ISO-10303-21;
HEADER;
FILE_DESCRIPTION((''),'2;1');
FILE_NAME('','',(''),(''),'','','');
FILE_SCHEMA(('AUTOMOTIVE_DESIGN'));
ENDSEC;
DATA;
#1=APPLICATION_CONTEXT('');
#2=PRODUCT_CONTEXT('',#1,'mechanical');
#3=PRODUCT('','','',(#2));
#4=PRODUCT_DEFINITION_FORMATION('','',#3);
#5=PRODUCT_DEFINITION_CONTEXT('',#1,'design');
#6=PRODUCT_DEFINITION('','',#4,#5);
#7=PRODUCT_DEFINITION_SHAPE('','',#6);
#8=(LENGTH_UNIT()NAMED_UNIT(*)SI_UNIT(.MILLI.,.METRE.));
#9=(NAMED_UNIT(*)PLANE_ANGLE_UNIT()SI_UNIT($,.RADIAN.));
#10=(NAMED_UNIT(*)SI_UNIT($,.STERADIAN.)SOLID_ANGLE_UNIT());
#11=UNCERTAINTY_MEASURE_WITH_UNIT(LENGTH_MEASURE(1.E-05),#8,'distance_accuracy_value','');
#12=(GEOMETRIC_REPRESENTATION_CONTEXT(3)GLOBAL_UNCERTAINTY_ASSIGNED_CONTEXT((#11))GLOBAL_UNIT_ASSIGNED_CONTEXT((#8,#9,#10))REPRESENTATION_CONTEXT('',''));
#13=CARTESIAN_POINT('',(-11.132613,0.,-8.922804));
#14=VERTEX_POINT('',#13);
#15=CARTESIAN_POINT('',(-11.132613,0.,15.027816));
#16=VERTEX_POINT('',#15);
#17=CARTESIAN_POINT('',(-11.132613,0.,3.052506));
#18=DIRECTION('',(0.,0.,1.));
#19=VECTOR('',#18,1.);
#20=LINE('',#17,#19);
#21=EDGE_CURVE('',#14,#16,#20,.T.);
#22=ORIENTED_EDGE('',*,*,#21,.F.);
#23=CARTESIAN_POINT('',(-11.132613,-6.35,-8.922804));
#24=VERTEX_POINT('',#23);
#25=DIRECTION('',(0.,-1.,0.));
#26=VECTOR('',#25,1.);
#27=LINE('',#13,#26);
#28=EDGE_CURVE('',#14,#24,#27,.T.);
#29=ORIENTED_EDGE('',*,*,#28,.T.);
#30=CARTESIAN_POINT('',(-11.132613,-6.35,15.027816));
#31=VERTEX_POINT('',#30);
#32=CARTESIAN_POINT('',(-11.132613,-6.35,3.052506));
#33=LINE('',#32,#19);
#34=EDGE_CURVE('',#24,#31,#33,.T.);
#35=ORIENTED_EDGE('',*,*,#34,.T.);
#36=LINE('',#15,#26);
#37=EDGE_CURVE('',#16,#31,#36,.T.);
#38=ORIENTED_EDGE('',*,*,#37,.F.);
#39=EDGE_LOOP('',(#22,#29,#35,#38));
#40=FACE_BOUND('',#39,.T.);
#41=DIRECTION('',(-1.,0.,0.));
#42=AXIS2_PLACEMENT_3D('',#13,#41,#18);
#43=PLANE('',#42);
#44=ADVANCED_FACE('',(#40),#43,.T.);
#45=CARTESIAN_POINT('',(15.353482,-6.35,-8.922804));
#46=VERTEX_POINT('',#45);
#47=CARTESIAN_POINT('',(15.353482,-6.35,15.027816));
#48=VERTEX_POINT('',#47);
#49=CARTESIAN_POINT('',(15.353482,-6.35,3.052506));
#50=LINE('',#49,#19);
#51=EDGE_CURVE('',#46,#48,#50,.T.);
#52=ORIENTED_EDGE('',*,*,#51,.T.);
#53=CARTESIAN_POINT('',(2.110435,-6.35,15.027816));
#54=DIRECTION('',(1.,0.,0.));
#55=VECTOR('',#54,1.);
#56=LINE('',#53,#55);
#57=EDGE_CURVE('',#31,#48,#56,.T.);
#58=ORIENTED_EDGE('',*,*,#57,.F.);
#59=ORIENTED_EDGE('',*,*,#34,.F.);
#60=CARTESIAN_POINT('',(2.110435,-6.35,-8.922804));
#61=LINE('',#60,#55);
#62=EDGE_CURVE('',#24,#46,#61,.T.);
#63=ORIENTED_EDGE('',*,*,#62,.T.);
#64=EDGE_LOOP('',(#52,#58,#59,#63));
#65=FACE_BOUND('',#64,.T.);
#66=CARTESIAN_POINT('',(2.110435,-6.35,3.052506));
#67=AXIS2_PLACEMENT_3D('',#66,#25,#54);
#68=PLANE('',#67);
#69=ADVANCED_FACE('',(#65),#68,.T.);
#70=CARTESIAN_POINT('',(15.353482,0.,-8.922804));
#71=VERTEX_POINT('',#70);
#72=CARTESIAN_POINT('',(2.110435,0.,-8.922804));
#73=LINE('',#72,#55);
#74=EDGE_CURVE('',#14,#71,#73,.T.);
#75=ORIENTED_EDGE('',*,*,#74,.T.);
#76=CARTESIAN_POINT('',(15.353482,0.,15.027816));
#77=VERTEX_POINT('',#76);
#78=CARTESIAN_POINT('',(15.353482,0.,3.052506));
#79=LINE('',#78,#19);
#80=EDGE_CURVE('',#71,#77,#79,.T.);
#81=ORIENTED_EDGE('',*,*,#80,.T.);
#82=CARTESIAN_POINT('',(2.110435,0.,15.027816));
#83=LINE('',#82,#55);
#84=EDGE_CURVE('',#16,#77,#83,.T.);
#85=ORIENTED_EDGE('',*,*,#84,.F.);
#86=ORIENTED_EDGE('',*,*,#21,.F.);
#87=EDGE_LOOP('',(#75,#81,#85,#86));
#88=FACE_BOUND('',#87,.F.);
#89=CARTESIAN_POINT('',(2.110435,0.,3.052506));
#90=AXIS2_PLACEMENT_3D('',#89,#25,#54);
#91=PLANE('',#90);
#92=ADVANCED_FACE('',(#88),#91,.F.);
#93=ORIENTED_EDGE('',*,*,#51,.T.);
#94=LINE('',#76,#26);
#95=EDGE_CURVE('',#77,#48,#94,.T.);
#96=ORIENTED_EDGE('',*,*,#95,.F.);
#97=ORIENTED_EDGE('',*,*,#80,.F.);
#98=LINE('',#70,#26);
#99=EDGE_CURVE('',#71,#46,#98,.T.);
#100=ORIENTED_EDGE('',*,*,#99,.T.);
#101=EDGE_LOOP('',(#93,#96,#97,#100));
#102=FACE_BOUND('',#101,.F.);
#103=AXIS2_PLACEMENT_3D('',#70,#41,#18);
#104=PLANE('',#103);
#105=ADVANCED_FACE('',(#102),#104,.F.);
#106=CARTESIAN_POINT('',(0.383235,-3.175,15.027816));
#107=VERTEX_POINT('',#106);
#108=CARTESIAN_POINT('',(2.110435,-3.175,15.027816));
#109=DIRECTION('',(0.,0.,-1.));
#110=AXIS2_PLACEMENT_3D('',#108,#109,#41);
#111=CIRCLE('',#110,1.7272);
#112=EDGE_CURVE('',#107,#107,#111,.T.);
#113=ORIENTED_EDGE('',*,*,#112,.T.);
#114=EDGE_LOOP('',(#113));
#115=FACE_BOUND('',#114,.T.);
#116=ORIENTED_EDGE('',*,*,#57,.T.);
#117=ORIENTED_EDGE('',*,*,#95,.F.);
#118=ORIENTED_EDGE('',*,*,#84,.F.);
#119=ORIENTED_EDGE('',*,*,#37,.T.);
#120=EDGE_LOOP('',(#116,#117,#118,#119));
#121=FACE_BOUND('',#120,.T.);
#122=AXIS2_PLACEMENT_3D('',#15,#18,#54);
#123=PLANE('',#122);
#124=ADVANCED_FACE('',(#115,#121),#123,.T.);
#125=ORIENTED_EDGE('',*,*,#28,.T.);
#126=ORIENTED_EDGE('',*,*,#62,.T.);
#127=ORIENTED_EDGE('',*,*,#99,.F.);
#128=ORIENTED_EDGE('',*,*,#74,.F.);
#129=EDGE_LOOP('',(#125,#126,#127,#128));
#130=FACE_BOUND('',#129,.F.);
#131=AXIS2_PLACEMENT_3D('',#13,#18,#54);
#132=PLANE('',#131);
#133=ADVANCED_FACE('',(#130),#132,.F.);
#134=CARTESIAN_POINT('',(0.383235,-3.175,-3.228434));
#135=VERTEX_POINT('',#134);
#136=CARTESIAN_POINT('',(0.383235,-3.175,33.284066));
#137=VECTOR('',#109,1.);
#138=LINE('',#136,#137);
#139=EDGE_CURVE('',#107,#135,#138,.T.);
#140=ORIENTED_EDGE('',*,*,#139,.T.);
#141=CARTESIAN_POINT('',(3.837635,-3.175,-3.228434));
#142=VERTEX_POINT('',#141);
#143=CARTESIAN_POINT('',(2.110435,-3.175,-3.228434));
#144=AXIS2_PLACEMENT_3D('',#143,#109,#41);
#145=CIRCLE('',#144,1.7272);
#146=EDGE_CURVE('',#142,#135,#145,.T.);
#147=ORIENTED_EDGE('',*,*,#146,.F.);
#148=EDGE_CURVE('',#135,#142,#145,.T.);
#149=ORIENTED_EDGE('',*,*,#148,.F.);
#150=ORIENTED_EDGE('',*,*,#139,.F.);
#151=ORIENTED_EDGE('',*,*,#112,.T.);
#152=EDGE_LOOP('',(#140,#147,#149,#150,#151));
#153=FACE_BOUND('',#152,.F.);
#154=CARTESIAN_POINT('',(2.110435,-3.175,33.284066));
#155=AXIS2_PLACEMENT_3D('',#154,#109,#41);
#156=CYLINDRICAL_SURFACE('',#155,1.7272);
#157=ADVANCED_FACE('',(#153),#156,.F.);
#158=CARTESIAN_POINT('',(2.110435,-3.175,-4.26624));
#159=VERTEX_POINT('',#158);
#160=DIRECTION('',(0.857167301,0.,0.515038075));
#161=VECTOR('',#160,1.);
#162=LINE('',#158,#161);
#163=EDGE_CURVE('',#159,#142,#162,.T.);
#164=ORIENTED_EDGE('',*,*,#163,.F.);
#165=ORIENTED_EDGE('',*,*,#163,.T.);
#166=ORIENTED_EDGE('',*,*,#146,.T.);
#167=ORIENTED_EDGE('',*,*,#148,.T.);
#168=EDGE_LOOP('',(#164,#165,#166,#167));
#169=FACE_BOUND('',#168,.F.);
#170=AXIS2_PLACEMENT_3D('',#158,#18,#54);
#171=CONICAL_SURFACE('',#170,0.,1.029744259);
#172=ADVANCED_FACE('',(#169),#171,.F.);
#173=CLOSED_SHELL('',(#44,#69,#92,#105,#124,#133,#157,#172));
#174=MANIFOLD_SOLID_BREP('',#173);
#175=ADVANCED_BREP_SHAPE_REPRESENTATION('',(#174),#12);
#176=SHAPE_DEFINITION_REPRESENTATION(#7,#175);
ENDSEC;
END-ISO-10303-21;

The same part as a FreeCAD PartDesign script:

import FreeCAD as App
import Part
import Sketcher

V = App.Vector
Q = App.Units.Quantity

doc = App.newDocument("Part")
params = doc.addObject("Spreadsheet::Sheet", "Params")
for row, (alias, value) in enumerate([
    ("pad1_length", "0.25 in"),
    ("sketch2_diameter", "0.136 in"),
    ("hole_diameter", "0.136 in"),
    ("hole_depth", "0.71875 in"),
], start=1):
    params.set(f"A{row}", alias)
    params.set(f"B{row}", "=" + value)
    params.setAlias(f"B{row}", alias)

body = doc.addObject("PartDesign::Body", "Body")

sketch1 = body.newObject("Sketcher::SketchObject", "Sketch")
sketch1.AttachmentSupport = (doc.getObject("XZ_Plane"), [""])
sketch1.MapMode = "FlatFace"
sketch1.addGeometry(Part.LineSegment(V(-11.132613, 15.027816, 0), V(-11.132613, -8.922804, 0)), False)
sketch1.addGeometry(Part.LineSegment(V(-11.132613, -8.922804, 0), V(15.353482, -8.922804, 0)), False)
sketch1.addGeometry(Part.LineSegment(V(15.353482, -8.922804, 0), V(15.353482, 15.027816, 0)), False)
sketch1.addGeometry(Part.LineSegment(V(15.353482, 15.027816, 0), V(-11.132613, 15.027816, 0)), False)
sketch1.addConstraint(Sketcher.Constraint("Coincident", 0, 2, 1, 1))
sketch1.addConstraint(Sketcher.Constraint("Coincident", 1, 2, 2, 1))
sketch1.addConstraint(Sketcher.Constraint("Coincident", 2, 2, 3, 1))
sketch1.addConstraint(Sketcher.Constraint("Coincident", 3, 2, 0, 1))
sketch1.addConstraint(Sketcher.Constraint("Vertical", 0))
sketch1.addConstraint(Sketcher.Constraint("Horizontal", 1))
sketch1.addConstraint(Sketcher.Constraint("Vertical", 2))
sketch1.addConstraint(Sketcher.Constraint("Horizontal", 3))
sketch1.addConstraint(Sketcher.Constraint("DistanceY", 0, 2, 0, 1, 23.950621))
sketch1.addConstraint(Sketcher.Constraint("DistanceX", 1, 1, 1, 2, 26.486095))
sketch1.addConstraint(Sketcher.Constraint("DistanceX", 0, 2, -1, 1, 11.132613))
sketch1.addConstraint(Sketcher.Constraint("DistanceY", 0, 2, -1, 1, 8.922804))
pad1 = body.newObject("PartDesign::Pad", "Pad")
pad1.Profile = sketch1
pad1.setExpression("Length", "Params.pad1_length")

sketch2 = body.newObject("Sketcher::SketchObject", "Sketch001")
sketch2.AttachmentSupport = (doc.getObject("XY_Plane"), [""])
sketch2.MapMode = "FlatFace"
sketch2.AttachmentOffset = App.Placement(V(0, 0, 15.027816), App.Rotation())
sketch2.addGeometry(Part.Circle(V(2.110435, -3.175, 0), V(0, 0, 1), 1.7272), False)
sketch2.addConstraint(Sketcher.Constraint("Diameter", 0, Q("0.136 in")))
sketch2.addConstraint(Sketcher.Constraint("DistanceY", 0, 3, -1, 1, Q("0.125 in")))
sketch2.addConstraint(Sketcher.Constraint("DistanceX", -1, 1, 0, 3, 2.110435))
sketch2.setExpression("Constraints[0]", "Params.sketch2_diameter")
doc.recompute()
hole = body.newObject("PartDesign::Hole", "Hole")
hole.Profile = sketch2
hole.ThreadType = "None"
hole.setExpression("Diameter", "Params.hole_diameter")
hole.DepthType = "Dimension"
hole.setExpression("Depth", "Params.hole_depth")
hole.DrillPoint = "Angled"
hole.DrillPointAngle = 118

doc.recompute()
